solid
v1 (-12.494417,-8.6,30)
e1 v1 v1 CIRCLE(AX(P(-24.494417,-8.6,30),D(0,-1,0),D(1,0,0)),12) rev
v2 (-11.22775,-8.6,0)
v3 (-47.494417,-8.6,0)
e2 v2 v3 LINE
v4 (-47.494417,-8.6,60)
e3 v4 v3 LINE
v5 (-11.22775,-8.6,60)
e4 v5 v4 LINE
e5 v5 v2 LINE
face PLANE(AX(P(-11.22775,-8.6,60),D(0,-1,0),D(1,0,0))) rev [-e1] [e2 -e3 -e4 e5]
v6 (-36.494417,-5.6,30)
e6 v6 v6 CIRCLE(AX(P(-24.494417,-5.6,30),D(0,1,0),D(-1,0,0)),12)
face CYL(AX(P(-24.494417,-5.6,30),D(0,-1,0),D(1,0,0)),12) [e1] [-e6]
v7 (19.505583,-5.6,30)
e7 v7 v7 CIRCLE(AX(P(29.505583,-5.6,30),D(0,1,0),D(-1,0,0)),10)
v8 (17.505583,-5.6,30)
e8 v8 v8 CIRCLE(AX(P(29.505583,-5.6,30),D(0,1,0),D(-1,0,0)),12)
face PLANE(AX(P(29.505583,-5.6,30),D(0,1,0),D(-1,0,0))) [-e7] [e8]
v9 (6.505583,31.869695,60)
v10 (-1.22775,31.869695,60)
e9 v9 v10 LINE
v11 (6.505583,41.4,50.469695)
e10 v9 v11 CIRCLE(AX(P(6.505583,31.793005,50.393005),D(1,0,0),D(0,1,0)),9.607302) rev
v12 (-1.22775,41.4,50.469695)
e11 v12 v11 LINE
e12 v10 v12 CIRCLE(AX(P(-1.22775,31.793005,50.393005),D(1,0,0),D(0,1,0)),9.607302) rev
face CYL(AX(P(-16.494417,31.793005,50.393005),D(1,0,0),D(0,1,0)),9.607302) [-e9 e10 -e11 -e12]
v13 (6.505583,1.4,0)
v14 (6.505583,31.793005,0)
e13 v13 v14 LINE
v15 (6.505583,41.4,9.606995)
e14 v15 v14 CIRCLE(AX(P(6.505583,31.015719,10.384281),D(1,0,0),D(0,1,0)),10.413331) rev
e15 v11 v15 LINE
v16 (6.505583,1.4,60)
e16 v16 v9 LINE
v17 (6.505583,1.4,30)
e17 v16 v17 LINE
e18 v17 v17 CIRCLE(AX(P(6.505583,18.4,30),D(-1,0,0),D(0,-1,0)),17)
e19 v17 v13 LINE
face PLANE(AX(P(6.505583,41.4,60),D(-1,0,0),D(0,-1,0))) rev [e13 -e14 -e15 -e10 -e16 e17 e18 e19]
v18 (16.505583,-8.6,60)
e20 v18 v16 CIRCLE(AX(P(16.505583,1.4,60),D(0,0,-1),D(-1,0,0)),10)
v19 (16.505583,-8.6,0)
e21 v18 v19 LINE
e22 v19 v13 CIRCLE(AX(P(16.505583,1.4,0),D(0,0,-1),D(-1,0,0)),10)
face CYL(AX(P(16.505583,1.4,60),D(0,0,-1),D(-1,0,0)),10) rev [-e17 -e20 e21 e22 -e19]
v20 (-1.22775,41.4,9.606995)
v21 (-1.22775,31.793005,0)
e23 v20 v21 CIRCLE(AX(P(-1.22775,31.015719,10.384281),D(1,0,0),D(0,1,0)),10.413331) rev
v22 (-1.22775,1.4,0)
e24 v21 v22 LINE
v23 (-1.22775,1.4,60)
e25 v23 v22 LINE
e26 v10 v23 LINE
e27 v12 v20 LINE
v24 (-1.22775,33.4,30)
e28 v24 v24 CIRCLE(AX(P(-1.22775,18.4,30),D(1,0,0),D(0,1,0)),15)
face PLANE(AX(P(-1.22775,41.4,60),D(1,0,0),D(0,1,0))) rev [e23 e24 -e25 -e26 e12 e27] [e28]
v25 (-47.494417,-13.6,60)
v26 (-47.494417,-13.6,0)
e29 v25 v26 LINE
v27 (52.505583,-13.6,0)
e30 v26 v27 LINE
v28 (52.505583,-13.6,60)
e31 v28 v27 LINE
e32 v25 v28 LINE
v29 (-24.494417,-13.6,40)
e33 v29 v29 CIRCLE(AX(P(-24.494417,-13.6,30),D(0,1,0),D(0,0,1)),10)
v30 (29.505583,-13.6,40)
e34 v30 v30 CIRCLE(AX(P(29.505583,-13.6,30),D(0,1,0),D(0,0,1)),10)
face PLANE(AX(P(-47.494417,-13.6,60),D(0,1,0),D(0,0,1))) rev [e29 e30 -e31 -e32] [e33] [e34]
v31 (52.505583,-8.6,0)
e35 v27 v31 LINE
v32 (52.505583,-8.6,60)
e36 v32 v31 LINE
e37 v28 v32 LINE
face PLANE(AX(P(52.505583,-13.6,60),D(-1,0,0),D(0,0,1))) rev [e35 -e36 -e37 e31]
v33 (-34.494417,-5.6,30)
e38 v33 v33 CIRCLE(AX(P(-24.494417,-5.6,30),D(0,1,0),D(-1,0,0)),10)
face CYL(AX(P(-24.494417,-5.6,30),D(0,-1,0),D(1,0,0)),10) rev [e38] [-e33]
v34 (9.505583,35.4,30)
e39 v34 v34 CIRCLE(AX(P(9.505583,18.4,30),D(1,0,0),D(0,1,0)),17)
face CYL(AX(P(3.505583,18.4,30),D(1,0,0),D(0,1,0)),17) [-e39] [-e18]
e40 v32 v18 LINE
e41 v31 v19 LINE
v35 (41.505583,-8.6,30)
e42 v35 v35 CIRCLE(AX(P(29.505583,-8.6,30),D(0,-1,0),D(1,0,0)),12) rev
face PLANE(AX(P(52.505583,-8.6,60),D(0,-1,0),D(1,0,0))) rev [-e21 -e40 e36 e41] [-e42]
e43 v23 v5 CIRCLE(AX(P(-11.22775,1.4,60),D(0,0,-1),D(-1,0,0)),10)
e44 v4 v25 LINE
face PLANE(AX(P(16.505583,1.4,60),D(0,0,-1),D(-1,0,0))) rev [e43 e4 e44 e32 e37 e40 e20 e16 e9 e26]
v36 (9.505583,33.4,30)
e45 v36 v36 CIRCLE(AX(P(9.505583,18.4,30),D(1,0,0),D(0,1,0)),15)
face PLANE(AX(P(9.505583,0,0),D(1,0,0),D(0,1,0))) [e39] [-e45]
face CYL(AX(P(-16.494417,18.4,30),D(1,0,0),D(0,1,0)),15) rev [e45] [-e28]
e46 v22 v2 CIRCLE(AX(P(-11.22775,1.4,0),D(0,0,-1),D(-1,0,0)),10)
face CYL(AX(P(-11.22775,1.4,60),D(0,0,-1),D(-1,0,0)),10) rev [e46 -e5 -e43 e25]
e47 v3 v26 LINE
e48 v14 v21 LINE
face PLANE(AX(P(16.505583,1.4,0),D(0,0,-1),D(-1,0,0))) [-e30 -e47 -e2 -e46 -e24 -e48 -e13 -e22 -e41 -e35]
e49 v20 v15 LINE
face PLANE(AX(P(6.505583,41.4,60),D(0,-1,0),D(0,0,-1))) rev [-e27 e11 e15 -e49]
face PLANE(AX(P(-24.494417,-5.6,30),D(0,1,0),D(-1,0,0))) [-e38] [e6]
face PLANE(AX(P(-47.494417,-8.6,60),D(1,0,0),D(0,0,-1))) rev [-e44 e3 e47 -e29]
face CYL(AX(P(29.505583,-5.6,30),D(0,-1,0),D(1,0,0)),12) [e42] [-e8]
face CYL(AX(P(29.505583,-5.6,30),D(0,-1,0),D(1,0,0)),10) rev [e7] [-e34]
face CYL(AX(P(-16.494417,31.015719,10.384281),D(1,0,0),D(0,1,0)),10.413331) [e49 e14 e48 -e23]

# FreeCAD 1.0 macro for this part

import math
import FreeCAD as App
import Part
import Sketcher
Q = App.Units.Quantity

doc = App.newDocument("Part")
params = doc.addObject("Spreadsheet::Sheet", "Params")
for row, (alias, value) in enumerate([
    ("sketch1_radius", "10 mm"),
    ("sketch1_width", "100 mm"),
    ("sketch1_width2", "36 mm"),
    ("sketch1_height", "5 mm"),
    ("sketch1_height2", "40 mm"),
    ("pad1_length", "60 mm"),
    ("sketch2_diameter", "24 mm"),
    ("sketch2_diameter2", "20 mm"),
    ("pad2_length", "3 mm"),
    ("sketch3_diameter", "20 mm"),
    ("pocket1_length", "53 mm"),
    ("sketch4_diameter", "30 mm"),
    ("pocket2_length", "23 mm"),
    ("sketch5_diameter", "34 mm"),
    ("sketch5_diameter2", "30 mm"),
    ("pad3_length", "3 mm"),
    ("pad3_length2", "3 mm"),
], start=1):
    params.set(f"A{row}", alias)
    params.set(f"B{row}", "=" + value)
    params.setAlias(f"B{row}", alias)

body = doc.addObject("PartDesign::Body", "Body")

sketch1 = body.newObject("Sketcher::SketchObject", "Sketch")
sketch1.AttachmentSupport = (doc.getObject("XY_Plane"), [""])
sketch1.MapMode = "FlatFace"
sketch1.addGeometry(Part.LineSegment(App.Vector(-47, -14, 0), App.Vector(53, -14, 0)), False)
sketch1.addGeometry(Part.LineSegment(App.Vector(53, -14, 0), App.Vector(53, -9, 0)), False)
sketch1.addGeometry(Part.LineSegment(App.Vector(53, -9, 0), App.Vector(17, -9, 0)), False)
sketch1.addGeometry(Part.ArcOfCircle(Part.Circle(App.Vector(17, 1, 0), App.Vector(0, 0, 1), 10), math.radians(180), math.radians(270)), False)
sketch1.addGeometry(Part.LineSegment(App.Vector(7, 1, 0), App.Vector(7, 41, 0)), False)
sketch1.addGeometry(Part.LineSegment(App.Vector(7, 41, 0), App.Vector(-1, 41, 0)), False)
sketch1.addGeometry(Part.LineSegment(App.Vector(-1, 41, 0), App.Vector(-1, 1, 0)), False)
sketch1.addGeometry(Part.ArcOfCircle(Part.Circle(App.Vector(-11, 1, 0), App.Vector(0, 0, 1), 10), math.radians(-90), math.radians(0)), False)
sketch1.addGeometry(Part.LineSegment(App.Vector(-11, -9, 0), App.Vector(-47, -9, 0)), False)
sketch1.addGeometry(Part.LineSegment(App.Vector(-47, -9, 0), App.Vector(-47, -14, 0)), False)
sketch1.addConstraint(Sketcher.Constraint("Coincident", 0, 2, 1, 1))
sketch1.addConstraint(Sketcher.Constraint("Coincident", 1, 2, 2, 1))
sketch1.addConstraint(Sketcher.Constraint("Tangent", 2, 2, 3, 2))
sketch1.addConstraint(Sketcher.Constraint("Tangent", 3, 1, 4, 1))
sketch1.addConstraint(Sketcher.Constraint("Coincident", 4, 2, 5, 1))
sketch1.addConstraint(Sketcher.Constraint("Coincident", 5, 2, 6, 1))
sketch1.addConstraint(Sketcher.Constraint("Tangent", 6, 2, 7, 2))
sketch1.addConstraint(Sketcher.Constraint("Tangent", 7, 1, 8, 1))
sketch1.addConstraint(Sketcher.Constraint("Coincident", 8, 2, 9, 1))
sketch1.addConstraint(Sketcher.Constraint("Coincident", 9, 2, 0, 1))
sketch1.addConstraint(Sketcher.Constraint("Horizontal", 0))
sketch1.addConstraint(Sketcher.Constraint("Vertical", 1))
sketch1.addConstraint(Sketcher.Constraint("Horizontal", 2))
sketch1.addConstraint(Sketcher.Constraint("Vertical", 4))
sketch1.addConstraint(Sketcher.Constraint("Horizontal", 5))
sketch1.addConstraint(Sketcher.Constraint("Vertical", 6))
sketch1.addConstraint(Sketcher.Constraint("Horizontal", 8))
sketch1.addConstraint(Sketcher.Constraint("Vertical", 9))
sketch1.addConstraint(Sketcher.Constraint("Equal", 3, 7))
sketch1.addConstraint(Sketcher.Constraint("Horizontal", 3, 3, 7, 3))
sketch1.addConstraint(Sketcher.Constraint("Radius", 3, Q("10 mm")))
sketch1.addConstraint(Sketcher.Constraint("DistanceX", 0, 1, 0, 2, Q("100 mm")))
sketch1.addConstraint(Sketcher.Constraint("DistanceX", 2, 2, 2, 1, Q("36 mm")))
sketch1.addConstraint(Sketcher.Constraint("DistanceY", 1, 1, 1, 2, Q("5 mm")))
sketch1.addConstraint(Sketcher.Constraint("DistanceY", 4, 1, 4, 2, Q("40 mm")))
sketch1.addConstraint(Sketcher.Constraint("DistanceY", -1, 1, 3, 3, Q("1.4 mm")))
sketch1.addConstraint(Sketcher.Constraint("DistanceX", 5, 2, 5, 1, Q("7.733333 mm")))
sketch1.addConstraint(Sketcher.Constraint("DistanceX", 7, 3, -1, 1, Q("11.22775 mm")))
sketch1.setExpression("Constraints[20]", "Params.sketch1_radius")
sketch1.setExpression("Constraints[21]", "Params.sketch1_width")
sketch1.setExpression("Constraints[22]", "Params.sketch1_width2")
sketch1.setExpression("Constraints[23]", "Params.sketch1_height")
sketch1.setExpression("Constraints[24]", "Params.sketch1_height2")
pad1 = body.newObject("PartDesign::Pad", "Pad")
pad1.Profile = sketch1
pad1.setExpression("Length", "Params.pad1_length")

sketch2 = body.newObject("Sketcher::SketchObject", "Sketch001")
sketch2.AttachmentSupport = (doc.getObject("XZ_Plane"), [""])
sketch2.MapMode = "FlatFace"
sketch2.AttachmentOffset = App.Placement(App.Vector(0, 0, 8.6), App.Rotation())
sketch2.addGeometry(Part.Circle(App.Vector(-24, 30, 0), App.Vector(0, 0, 1), 12), False)
sketch2.addGeometry(Part.Circle(App.Vector(-24, 30, 0), App.Vector(0, 0, 1), 10), False)
sketch2.addGeometry(Part.Circle(App.Vector(30, 30, 0), App.Vector(0, 0, 1), 12), False)
sketch2.addGeometry(Part.Circle(App.Vector(30, 30, 0), App.Vector(0, 0, 1), 10), False)
sketch2.addConstraint(Sketcher.Constraint("Coincident", 1, 3, 0, 3))
sketch2.addConstraint(Sketcher.Constraint("Coincident", 3, 3, 2, 3))
sketch2.addConstraint(Sketcher.Constraint("Equal", 0, 2))
sketch2.addConstraint(Sketcher.Constraint("Equal", 1, 3))
sketch2.addConstraint(Sketcher.Constraint("Horizontal", 1, 3, 2, 3))
sketch2.addConstraint(Sketcher.Constraint("Diameter", 0, Q("24 mm")))
sketch2.addConstraint(Sketcher.Constraint("Diameter", 1, Q("20 mm")))
sketch2.addConstraint(Sketcher.Constraint("DistanceY", -1, 1, 0, 3, Q("30 mm")))
sketch2.addConstraint(Sketcher.Constraint("DistanceX", 0, 3, 2, 3, Q("54 mm")))
sketch2.addConstraint(Sketcher.Constraint("DistanceX", 0, 3, -1, 1, Q("24.494417 mm")))
sketch2.setExpression("Constraints[5]", "Params.sketch2_diameter")
sketch2.setExpression("Constraints[6]", "Params.sketch2_diameter2")
pad2 = body.newObject("PartDesign::Pad", "Pad001")
pad2.Profile = sketch2
pad2.setExpression("Length", "Params.pad2_length")
pad2.Reversed = True

sketch3 = body.newObject("Sketcher::SketchObject", "Sketch002")
sketch3.AttachmentSupport = (doc.getObject("XZ_Plane"), [""])
sketch3.MapMode = "FlatFace"
sketch3.AttachmentOffset = App.Placement(App.Vector(0, 0, 8.6), App.Rotation())
sketch3.addGeometry(Part.Circle(App.Vector(-24, 30, 0), App.Vector(0, 0, 1), 10), False)
sketch3.addGeometry(Part.Circle(App.Vector(30, 30, 0), App.Vector(0, 0, 1), 10), False)
sketch3.addConstraint(Sketcher.Constraint("Equal", 0, 1))
sketch3.addConstraint(Sketcher.Constraint("Horizontal", 0, 3, 1, 3))
sketch3.addConstraint(Sketcher.Constraint("Diameter", 0, Q("20 mm")))
sketch3.addConstraint(Sketcher.Constraint("DistanceY", -1, 1, 0, 3, Q("30 mm")))
sketch3.addConstraint(Sketcher.Constraint("DistanceX", 0, 3, 1, 3, Q("54 mm")))
sketch3.addConstraint(Sketcher.Constraint("DistanceX", 0, 3, -1, 1, Q("24.494417 mm")))
sketch3.setExpression("Constraints[2]", "Params.sketch3_diameter")
pocket1 = body.newObject("PartDesign::Pocket", "Pocket")
pocket1.Profile = sketch3
pocket1.setExpression("Length", "Params.pocket1_length")
pocket1.Reversed = True

sketch4 = body.newObject("Sketcher::SketchObject", "Sketch003")
sketch4.AttachmentSupport = (doc.getObject("YZ_Plane"), [""])
sketch4.MapMode = "FlatFace"
sketch4.AttachmentOffset = App.Placement(App.Vector(0, 0, 6.505583), App.Rotation())
sketch4.addGeometry(Part.Circle(App.Vector(18, 30, 0), App.Vector(0, 0, 1), 15), False)
sketch4.addGeometry(Part.LineSegment(App.Vector(41, 60, 0), App.Vector(32, 60, 0)), False)
sketch4.addGeometry(Part.ArcOfCircle(Part.Circle(App.Vector(32, 50, 0), App.Vector(0, 0, 1), 10), math.radians(0), math.radians(90)), False)
sketch4.addGeometry(Part.LineSegment(App.Vector(41, 50, 0), App.Vector(41, 60, 0)), False)
sketch4.addGeometry(Part.LineSegment(App.Vector(41, 0, 0), App.Vector(41, 10, 0)), False)
sketch4.addGeometry(Part.ArcOfCircle(Part.Circle(App.Vector(31, 10, 0), App.Vector(0, 0, 1), 10), math.radians(-86), math.radians(-4)), False)
sketch4.addGeometry(Part.LineSegment(App.Vector(32, 0, 0), App.Vector(41, 0, 0)), False)
sketch4.addConstraint(Sketcher.Constraint("Coincident", 1, 2, 2, 2))
sketch4.addConstraint(Sketcher.Constraint("Coincident", 2, 1, 3, 1))
sketch4.addConstraint(Sketcher.Constraint("Coincident", 3, 2, 1, 1))
sketch4.addConstraint(Sketcher.Constraint("Coincident", 4, 2, 5, 2))
sketch4.addConstraint(Sketcher.Constraint("Coincident", 5, 1, 6, 1))
sketch4.addConstraint(Sketcher.Constraint("Coincident", 6, 2, 4, 1))
sketch4.addConstraint(Sketcher.Constraint("Horizontal", 1))
sketch4.addConstraint(Sketcher.Constraint("Vertical", 3))
sketch4.addConstraint(Sketcher.Constraint("Vertical", 4))
sketch4.addConstraint(Sketcher.Constraint("Horizontal", 6))
sketch4.addConstraint(Sketcher.Constraint("PointOnObject", 5, 1, -1))
sketch4.addConstraint(Sketcher.Constraint("Vertical", 3, 2, 4, 2))
sketch4.addConstraint(Sketcher.Constraint("Vertical", 2, 3, 5, 1))
sketch4.addConstraint(Sketcher.Constraint("Equal", 1, 3))
sketch4.addConstraint(Sketcher.Constraint("Equal", 6, 4))
sketch4.addConstraint(Sketcher.Constraint("Diameter", 0, Q("30 mm")))
sketch4.addConstraint(Sketcher.Constraint("DistanceY", -1, 1, 0, 3, Q("30 mm")))
sketch4.addConstraint(Sketcher.Constraint("DistanceY", -1, 1, 1, 2, Q("60 mm")))
sketch4.addConstraint(Sketcher.Constraint("DistanceX", 0, 3, 2, 1, Q("23 mm")))
sketch4.addConstraint(Sketcher.Constraint("DistanceX", -1, 1, 0, 3, Q("18.4 mm")))
sketch4.addConstraint(Sketcher.Constraint("Radius", 2, Q("9.607302 mm")))
sketch4.addConstraint(Sketcher.Constraint("Radius", 5, Q("10.413331 mm")))
sketch4.addConstraint(Sketcher.Constraint("DistanceY", 4, 2, 2, 1, Q("40.862699 mm")))
sketch4.setExpression("Constraints[15]", "Params.sketch4_diameter")
pocket2 = body.newObject("PartDesign::Pocket", "Pocket001")
pocket2.Profile = sketch4
pocket2.setExpression("Length", "Params.pocket2_length")

sketch5 = body.newObject("Sketcher::SketchObject", "Sketch004")
sketch5.AttachmentSupport = (doc.getObject("YZ_Plane"), [""])
sketch5.MapMode = "FlatFace"
sketch5.AttachmentOffset = App.Placement(App.Vector(0, 0, 6.505583), App.Rotation())
sketch5.addGeometry(Part.Circle(App.Vector(18, 30, 0), App.Vector(0, 0, 1), 17), False)
sketch5.addGeometry(Part.Circle(App.Vector(18, 30, 0), App.Vector(0, 0, 1), 15), False)
sketch5.addConstraint(Sketcher.Constraint("Coincident", 1, 3, 0, 3))
sketch5.addConstraint(Sketcher.Constraint("Diameter", 0, Q("34 mm")))
sketch5.addConstraint(Sketcher.Constraint("Diameter", 1, Q("30 mm")))
sketch5.addConstraint(Sketcher.Constraint("DistanceY", -1, 1, 0, 3, Q("30 mm")))
sketch5.addConstraint(Sketcher.Constraint("DistanceX", -1, 1, 0, 3, Q("18.4 mm")))
sketch5.setExpression("Constraints[1]", "Params.sketch5_diameter")
sketch5.setExpression("Constraints[2]", "Params.sketch5_diameter2")
pad3 = body.newObject("PartDesign::Pad", "Pad002")
pad3.Profile = sketch5
pad3.Type = "TwoLengths"
pad3.setExpression("Length", "Params.pad3_length")
pad3.setExpression("Length2", "Params.pad3_length2")

doc.recompute()
